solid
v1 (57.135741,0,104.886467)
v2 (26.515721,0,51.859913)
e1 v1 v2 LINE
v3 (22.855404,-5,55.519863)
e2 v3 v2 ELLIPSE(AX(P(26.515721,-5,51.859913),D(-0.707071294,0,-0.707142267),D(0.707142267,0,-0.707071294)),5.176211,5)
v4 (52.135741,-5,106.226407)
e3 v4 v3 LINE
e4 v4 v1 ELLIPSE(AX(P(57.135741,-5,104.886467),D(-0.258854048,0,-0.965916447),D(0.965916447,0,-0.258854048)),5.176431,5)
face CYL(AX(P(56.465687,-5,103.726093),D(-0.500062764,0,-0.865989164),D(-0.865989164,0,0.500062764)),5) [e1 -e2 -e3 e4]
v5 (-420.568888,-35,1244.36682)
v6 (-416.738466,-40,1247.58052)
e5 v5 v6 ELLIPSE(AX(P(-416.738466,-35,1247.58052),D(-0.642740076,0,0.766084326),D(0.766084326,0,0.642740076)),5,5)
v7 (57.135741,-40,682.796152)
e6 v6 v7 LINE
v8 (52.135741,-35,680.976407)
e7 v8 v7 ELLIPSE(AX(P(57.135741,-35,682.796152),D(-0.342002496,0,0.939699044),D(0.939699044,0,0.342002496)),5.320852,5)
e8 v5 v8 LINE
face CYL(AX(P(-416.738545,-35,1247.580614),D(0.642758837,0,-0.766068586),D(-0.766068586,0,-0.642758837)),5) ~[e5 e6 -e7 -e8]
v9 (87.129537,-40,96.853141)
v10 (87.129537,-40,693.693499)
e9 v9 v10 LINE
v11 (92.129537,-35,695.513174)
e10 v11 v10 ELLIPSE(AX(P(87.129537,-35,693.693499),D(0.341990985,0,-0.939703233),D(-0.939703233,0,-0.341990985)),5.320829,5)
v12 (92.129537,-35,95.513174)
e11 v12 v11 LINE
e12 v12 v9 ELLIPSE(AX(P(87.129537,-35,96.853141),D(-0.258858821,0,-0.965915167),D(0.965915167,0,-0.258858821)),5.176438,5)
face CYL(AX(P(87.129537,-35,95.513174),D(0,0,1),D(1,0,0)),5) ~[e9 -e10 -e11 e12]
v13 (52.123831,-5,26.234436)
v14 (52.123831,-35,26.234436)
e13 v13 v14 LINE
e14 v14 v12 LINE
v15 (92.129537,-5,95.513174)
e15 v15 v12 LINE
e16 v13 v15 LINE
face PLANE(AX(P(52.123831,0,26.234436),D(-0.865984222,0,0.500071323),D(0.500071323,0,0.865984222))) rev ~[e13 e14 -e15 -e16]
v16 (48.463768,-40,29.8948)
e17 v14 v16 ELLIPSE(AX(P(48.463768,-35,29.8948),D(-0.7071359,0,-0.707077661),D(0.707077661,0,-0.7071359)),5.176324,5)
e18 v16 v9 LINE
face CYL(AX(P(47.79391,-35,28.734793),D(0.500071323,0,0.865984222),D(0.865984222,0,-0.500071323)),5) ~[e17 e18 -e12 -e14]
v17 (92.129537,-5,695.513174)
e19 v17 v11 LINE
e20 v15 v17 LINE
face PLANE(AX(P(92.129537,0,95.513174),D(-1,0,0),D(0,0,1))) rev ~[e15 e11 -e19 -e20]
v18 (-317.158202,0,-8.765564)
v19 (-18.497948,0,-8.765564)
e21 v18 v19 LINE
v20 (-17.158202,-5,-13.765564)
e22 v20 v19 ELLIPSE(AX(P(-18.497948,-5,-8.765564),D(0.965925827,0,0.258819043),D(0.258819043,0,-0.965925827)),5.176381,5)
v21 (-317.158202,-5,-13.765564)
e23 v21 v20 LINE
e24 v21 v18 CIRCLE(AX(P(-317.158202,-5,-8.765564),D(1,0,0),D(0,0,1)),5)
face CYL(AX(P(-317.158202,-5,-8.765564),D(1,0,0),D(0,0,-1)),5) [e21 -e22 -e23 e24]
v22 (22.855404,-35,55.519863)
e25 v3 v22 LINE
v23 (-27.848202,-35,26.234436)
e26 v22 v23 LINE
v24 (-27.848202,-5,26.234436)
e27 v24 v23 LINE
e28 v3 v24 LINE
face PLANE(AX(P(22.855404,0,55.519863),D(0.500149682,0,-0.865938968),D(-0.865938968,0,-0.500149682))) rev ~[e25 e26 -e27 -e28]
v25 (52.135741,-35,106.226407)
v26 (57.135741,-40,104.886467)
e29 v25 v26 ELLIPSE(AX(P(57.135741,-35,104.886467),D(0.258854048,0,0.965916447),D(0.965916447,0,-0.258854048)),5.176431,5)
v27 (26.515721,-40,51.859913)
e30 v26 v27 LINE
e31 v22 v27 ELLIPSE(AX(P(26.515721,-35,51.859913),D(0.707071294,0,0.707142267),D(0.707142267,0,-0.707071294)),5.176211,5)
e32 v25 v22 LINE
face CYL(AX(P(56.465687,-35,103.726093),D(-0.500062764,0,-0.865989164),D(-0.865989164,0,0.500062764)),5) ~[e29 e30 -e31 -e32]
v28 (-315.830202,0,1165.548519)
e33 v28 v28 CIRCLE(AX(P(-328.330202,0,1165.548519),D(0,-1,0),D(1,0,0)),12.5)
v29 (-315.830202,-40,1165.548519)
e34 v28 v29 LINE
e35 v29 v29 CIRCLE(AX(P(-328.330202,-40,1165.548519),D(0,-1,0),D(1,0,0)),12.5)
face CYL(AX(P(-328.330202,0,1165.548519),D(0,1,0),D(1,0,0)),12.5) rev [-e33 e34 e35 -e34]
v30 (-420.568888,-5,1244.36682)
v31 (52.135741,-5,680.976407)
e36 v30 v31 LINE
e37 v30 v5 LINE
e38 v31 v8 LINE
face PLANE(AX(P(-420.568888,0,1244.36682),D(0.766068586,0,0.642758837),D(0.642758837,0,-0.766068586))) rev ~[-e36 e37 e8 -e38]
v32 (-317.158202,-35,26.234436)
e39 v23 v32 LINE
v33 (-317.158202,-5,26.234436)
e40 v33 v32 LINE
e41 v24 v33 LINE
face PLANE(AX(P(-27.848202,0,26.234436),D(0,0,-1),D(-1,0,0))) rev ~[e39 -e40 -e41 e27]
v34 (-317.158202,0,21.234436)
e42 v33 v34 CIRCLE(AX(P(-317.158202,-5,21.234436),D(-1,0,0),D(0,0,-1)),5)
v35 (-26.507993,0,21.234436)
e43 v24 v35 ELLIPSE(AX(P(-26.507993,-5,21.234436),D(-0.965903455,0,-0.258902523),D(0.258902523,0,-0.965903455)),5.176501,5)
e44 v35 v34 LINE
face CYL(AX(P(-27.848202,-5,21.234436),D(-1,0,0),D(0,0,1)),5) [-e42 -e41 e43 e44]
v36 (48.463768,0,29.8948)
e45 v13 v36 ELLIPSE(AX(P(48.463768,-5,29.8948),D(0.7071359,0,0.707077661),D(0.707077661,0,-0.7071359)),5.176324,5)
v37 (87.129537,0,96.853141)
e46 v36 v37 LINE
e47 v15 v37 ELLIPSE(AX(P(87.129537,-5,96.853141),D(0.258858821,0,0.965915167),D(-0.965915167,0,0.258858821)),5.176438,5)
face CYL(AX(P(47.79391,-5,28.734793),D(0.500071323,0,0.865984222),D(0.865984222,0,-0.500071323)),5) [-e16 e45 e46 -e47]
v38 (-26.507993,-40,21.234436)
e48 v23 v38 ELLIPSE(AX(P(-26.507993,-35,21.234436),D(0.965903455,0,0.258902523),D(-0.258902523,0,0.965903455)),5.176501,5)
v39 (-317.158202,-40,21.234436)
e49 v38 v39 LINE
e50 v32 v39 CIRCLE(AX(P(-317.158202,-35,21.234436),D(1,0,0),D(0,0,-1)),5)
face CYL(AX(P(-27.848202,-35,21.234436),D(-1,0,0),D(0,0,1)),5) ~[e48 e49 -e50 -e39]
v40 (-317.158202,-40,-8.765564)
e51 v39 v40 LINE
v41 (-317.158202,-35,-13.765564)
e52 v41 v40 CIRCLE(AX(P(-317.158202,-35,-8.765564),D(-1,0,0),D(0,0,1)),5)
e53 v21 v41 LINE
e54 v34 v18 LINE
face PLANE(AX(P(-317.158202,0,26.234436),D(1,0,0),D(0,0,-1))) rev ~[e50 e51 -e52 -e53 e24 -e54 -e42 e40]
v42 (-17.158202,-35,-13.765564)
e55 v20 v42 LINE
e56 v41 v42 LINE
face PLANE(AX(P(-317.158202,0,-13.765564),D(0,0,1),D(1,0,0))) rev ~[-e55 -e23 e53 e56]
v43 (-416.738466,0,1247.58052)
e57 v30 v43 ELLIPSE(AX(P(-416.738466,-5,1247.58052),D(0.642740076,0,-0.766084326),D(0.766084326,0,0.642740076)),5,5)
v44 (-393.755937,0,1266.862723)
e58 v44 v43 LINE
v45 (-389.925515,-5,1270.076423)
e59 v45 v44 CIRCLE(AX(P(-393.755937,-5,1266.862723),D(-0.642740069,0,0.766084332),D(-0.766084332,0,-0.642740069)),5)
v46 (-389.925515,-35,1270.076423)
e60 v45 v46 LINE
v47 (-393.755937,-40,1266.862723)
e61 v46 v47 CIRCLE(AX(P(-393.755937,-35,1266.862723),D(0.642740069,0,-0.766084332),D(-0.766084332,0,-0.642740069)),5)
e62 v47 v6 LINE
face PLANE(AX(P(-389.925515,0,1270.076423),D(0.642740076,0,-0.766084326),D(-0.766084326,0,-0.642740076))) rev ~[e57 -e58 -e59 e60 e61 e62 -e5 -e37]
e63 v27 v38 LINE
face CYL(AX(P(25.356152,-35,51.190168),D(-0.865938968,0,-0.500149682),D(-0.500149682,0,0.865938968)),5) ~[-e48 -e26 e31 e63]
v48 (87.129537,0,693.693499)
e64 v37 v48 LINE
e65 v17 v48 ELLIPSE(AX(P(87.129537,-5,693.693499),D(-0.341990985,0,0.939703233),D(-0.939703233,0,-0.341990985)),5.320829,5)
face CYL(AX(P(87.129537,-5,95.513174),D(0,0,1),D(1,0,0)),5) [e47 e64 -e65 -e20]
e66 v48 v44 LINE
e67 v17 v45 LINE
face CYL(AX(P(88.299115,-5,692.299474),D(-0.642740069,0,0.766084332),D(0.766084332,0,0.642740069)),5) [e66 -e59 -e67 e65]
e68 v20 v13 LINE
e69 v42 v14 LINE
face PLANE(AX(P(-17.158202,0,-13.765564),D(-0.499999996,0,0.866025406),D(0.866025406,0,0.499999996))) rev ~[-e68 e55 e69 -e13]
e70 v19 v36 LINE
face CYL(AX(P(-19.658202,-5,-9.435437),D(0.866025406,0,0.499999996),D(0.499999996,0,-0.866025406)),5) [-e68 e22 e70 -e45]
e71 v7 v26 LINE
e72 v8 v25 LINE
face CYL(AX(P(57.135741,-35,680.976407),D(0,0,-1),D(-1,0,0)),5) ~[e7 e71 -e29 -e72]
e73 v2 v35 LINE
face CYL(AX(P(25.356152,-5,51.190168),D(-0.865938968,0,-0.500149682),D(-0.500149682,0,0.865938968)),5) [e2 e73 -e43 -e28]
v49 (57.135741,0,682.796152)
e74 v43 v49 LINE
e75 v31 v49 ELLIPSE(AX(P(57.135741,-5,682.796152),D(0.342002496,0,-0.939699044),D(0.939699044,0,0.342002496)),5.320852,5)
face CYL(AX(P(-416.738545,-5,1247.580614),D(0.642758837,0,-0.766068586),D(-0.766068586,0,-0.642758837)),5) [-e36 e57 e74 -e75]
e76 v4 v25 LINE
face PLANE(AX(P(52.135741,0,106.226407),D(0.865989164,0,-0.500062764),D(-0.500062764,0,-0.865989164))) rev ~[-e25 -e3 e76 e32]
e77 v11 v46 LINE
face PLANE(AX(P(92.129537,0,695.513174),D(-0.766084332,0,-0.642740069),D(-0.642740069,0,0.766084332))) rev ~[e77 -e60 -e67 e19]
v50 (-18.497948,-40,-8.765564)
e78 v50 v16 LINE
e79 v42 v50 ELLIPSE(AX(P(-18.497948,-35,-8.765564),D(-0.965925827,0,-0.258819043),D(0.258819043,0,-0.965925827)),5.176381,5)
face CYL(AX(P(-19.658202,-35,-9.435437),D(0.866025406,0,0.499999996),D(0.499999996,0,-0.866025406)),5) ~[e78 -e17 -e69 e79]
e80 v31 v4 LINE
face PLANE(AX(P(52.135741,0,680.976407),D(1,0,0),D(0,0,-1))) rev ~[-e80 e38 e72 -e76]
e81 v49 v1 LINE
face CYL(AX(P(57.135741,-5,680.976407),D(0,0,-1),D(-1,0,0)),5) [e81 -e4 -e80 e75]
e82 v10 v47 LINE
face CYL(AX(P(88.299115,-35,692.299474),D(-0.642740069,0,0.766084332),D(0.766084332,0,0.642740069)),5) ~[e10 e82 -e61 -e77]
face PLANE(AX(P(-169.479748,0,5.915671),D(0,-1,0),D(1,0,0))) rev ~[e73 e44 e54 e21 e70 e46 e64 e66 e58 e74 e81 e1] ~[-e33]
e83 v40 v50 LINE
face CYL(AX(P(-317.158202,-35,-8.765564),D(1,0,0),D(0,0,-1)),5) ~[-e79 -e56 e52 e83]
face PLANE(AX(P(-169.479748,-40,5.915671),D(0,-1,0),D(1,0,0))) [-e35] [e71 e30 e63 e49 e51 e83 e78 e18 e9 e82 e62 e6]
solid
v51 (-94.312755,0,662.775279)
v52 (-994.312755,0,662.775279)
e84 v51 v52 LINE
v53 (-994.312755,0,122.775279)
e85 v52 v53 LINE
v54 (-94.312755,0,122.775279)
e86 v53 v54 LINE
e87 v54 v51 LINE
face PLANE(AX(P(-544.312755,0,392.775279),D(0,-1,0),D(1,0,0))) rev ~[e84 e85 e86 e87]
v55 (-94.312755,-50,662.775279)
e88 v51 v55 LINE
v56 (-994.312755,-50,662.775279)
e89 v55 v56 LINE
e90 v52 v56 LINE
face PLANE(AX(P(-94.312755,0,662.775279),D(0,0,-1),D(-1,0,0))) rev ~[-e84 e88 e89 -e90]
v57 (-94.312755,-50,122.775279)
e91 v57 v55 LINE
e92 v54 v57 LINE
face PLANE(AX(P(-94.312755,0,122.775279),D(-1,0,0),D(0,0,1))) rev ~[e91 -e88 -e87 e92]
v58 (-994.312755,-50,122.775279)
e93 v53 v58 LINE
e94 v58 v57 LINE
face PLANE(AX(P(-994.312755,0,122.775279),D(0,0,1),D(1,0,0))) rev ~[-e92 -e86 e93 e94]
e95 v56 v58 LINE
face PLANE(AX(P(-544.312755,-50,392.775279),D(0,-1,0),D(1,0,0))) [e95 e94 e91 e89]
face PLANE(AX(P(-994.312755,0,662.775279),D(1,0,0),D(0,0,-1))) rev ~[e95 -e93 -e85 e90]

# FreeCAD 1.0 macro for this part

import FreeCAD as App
import Part
import Sketcher
Q = App.Units.Quantity


def edges_at(feature, points):
    """Names of the edges that pass closest to the given points."""
    edges = feature.Shape.Edges
    near = lambda p: min(range(len(edges)), key=lambda i: edges[i].distToShape(Part.Vertex(*p))[0])
    return sorted({f"Edge{near(p) + 1}" for p in points})

doc = App.newDocument("Part")
body = doc.addObject("PartDesign::Body", "Body")

# Sketch on XZ plane
sketch1 = body.newObject("Sketcher::SketchObject", "Sketch")
sketch1.AttachmentSupport = (doc.getObject("XZ_Plane"), [""])
sketch1.MapMode = "FlatFace"
sketch1.addGeometry(Part.LineSegment(App.Vector(-28, 26, 0), App.Vector(-317, 26, 0)), False)
sketch1.addGeometry(Part.LineSegment(App.Vector(-317, 26, 0), App.Vector(-317, -14, 0)), False)
sketch1.addGeometry(Part.LineSegment(App.Vector(-317, -14, 0), App.Vector(-17, -14, 0)), False)
sketch1.addGeometry(Part.LineSegment(App.Vector(-17, -14, 0), App.Vector(52, 26, 0)), False)
sketch1.addGeometry(Part.LineSegment(App.Vector(52, 26, 0), App.Vector(92, 96, 0)), False)
sketch1.addGeometry(Part.LineSegment(App.Vector(92, 96, 0), App.Vector(92, 696, 0)), False)
sketch1.addGeometry(Part.LineSegment(App.Vector(92, 696, 0), App.Vector(-390, 1270, 0)), False)
sketch1.addGeometry(Part.LineSegment(App.Vector(-390, 1270, 0), App.Vector(-421, 1244, 0)), False)
sketch1.addGeometry(Part.LineSegment(App.Vector(-421, 1244, 0), App.Vector(52, 681, 0)), False)
sketch1.addGeometry(Part.LineSegment(App.Vector(52, 681, 0), App.Vector(52, 106, 0)), False)
sketch1.addGeometry(Part.LineSegment(App.Vector(52, 106, 0), App.Vector(23, 56, 0)), False)
sketch1.addGeometry(Part.LineSegment(App.Vector(23, 56, 0), App.Vector(-28, 26, 0)), False)
sketch1.addGeometry(Part.Circle(App.Vector(-328, 1166, 0), App.Vector(0, 0, 1), 12), False)
sketch1.addConstraint(Sketcher.Constraint("Coincident", 0, 2, 1, 1))
sketch1.addConstraint(Sketcher.Constraint("Coincident", 1, 2, 2, 1))
sketch1.addConstraint(Sketcher.Constraint("Coincident", 2, 2, 3, 1))
sketch1.addConstraint(Sketcher.Constraint("Coincident", 3, 2, 4, 1))
sketch1.addConstraint(Sketcher.Constraint("Coincident", 4, 2, 5, 1))
sketch1.addConstraint(Sketcher.Constraint("Coincident", 5, 2, 6, 1))
sketch1.addConstraint(Sketcher.Constraint("Coincident", 6, 2, 7, 1))
sketch1.addConstraint(Sketcher.Constraint("Coincident", 7, 2, 8, 1))
sketch1.addConstraint(Sketcher.Constraint("Coincident", 8, 2, 9, 1))
sketch1.addConstraint(Sketcher.Constraint("Coincident", 9, 2, 10, 1))
sketch1.addConstraint(Sketcher.Constraint("Coincident", 10, 2, 11, 1))
sketch1.addConstraint(Sketcher.Constraint("Coincident", 11, 2, 0, 1))
sketch1.addConstraint(Sketcher.Constraint("Horizontal", 0))
sketch1.addConstraint(Sketcher.Constraint("Vertical", 1))
sketch1.addConstraint(Sketcher.Constraint("Horizontal", 2))
sketch1.addConstraint(Sketcher.Constraint("Vertical", 5))
sketch1.addConstraint(Sketcher.Constraint("Vertical", 9))
sketch1.addConstraint(Sketcher.Constraint("Perpendicular", 6, 7))
sketch1.addConstraint(Sketcher.Constraint("Horizontal", 0, 2, 3, 2))
sketch1.addConstraint(Sketcher.Constraint("Equal", 3, 4))
sketch1.addConstraint(Sketcher.Constraint("Equal", 10, 11))
sketch1.addConstraint(Sketcher.Constraint("Diameter", 12, 25.0))
sketch1.addConstraint(Sketcher.Constraint("DistanceX", 2, 1, 2, 2, 300.0))
sketch1.addConstraint(Sketcher.Constraint("DistanceY", 1, 2, 1, 1, 40.0))
sketch1.addConstraint(Sketcher.Constraint("DistanceY", 5, 1, 5, 2, 600.0))
sketch1.addConstraint(Sketcher.Constraint("Angle", 3, Q("30 deg")))
sketch1.addConstraint(Sketcher.Constraint("Distance", 6, 750.0))
sketch1.addConstraint(Sketcher.Constraint("Distance", 7, 40.0))
sketch1.addConstraint(Sketcher.Constraint("DistanceX", 0, 2, 0, 1, 289.31))
sketch1.addConstraint(Sketcher.Constraint("DistanceY", 9, 2, 9, 1, 574.75))
sketch1.addConstraint(Sketcher.Constraint("DistanceX", 12, 3, 0, 2, 11.172))
sketch1.addConstraint(Sketcher.Constraint("DistanceX", 12, 3, -1, 1, 328.330202))
sketch1.addConstraint(Sketcher.Constraint("DistanceY", 12, 3, 7, 2, 78.818301))
sketch1.addConstraint(Sketcher.Constraint("DistanceY", -1, 1, 12, 3, 1165.548519))
sketch1.addConstraint(Sketcher.Constraint("DistanceX", 7, 2, -1, 1, 420.568888))
sketch1.addConstraint(Sketcher.Constraint("DistanceX", -1, 1, 8, 2, 52.135741))
sketch1.addConstraint(Sketcher.Constraint("DistanceY", 3, 2, 4, 2, 69.278738))
sketch1.addConstraint(Sketcher.Constraint("DistanceY", 8, 2, 12, 3, 484.572112))
sketch1.addConstraint(Sketcher.Constraint("DistanceY", 10, 2, 4, 2, 39.993311))
pad1 = body.newObject("PartDesign::Pad", "Pad")
pad1.Profile = sketch1
pad1.Length = 40
doc.recompute()

fillet = body.newObject("PartDesign::Fillet", "Fillet")
fillet.Base = (pad1, edges_at(pad1, [
    (-148.898, -40, 982.795),
    (-184.217, 0, 962.672),
    (-184.217, -40, 962.672),
    (-148.898, 0, 982.795),
    (52.136, 0, 393.601),
    (52.136, -40, 393.601),
    (92.13, 0, 395.513),
    (-172.503, -40, 26.234),
    (37.496, -40, 80.873),
    (-2.496, -40, 40.877),
    (37.496, 0, 80.873),
    (-2.496, 0, 40.877),
    (-172.503, 0, 26.234),
    (-167.158, 0, -13.766),
    (17.483, 0, 6.234),
    (72.127, 0, 60.874),
    (-167.158, -40, -13.766),
    (17.483, -40, 6.234),
    (72.127, -40, 60.874),
    (92.13, -40, 395.513),
]))
fillet.Radius = 5
body2 = doc.addObject("PartDesign::Body", "Body001")

# Sketch on XZ plane
sketch2 = body2.newObject("Sketcher::SketchObject", "Sketch001")
sketch2.AttachmentSupport = (doc.getObject("XZ_Plane001"), [""])
sketch2.MapMode = "FlatFace"
sketch2.addGeometry(Part.LineSegment(App.Vector(-94, 123, 0), App.Vector(-94, 663, 0)), False)
sketch2.addGeometry(Part.LineSegment(App.Vector(-94, 663, 0), App.Vector(-994, 663, 0)), False)
sketch2.addGeometry(Part.LineSegment(App.Vector(-994, 663, 0), App.Vector(-994, 123, 0)), False)
sketch2.addGeometry(Part.LineSegment(App.Vector(-994, 123, 0), App.Vector(-94, 123, 0)), False)
sketch2.addConstraint(Sketcher.Constraint("Coincident", 0, 2, 1, 1))
sketch2.addConstraint(Sketcher.Constraint("Coincident", 1, 2, 2, 1))
sketch2.addConstraint(Sketcher.Constraint("Coincident", 2, 2, 3, 1))
sketch2.addConstraint(Sketcher.Constraint("Coincident", 3, 2, 0, 1))
sketch2.addConstraint(Sketcher.Constraint("Vertical", 0))
sketch2.addConstraint(Sketcher.Constraint("Horizontal", 1))
sketch2.addConstraint(Sketcher.Constraint("Vertical", 2))
sketch2.addConstraint(Sketcher.Constraint("Horizontal", 3))
sketch2.addConstraint(Sketcher.Constraint("DistanceX", 1, 2, 1, 1, 900.0))
sketch2.addConstraint(Sketcher.Constraint("DistanceY", 0, 1, 0, 2, 540.0))
sketch2.addConstraint(Sketcher.Constraint("DistanceY", -1, 1, 0, 2, 662.775279))
sketch2.addConstraint(Sketcher.Constraint("DistanceX", 0, 2, -1, 1, 94.312755))
pad2 = body2.newObject("PartDesign::Pad", "Pad001")
pad2.Profile = sketch2
pad2.Length = 50

doc.recompute()
